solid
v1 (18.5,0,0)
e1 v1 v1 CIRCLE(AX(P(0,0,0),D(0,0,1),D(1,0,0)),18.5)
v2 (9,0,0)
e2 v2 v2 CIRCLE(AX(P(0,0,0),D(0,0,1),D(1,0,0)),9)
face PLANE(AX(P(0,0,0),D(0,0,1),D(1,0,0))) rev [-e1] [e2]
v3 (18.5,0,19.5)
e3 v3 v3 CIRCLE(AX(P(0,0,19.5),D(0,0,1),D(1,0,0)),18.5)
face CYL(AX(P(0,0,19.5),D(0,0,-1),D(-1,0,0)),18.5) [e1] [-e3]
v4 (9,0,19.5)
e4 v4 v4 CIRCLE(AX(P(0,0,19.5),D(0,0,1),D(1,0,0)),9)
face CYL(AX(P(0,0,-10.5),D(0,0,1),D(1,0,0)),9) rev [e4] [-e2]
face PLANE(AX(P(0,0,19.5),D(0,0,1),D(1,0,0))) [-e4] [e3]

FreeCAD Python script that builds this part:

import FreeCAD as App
import Part
import Sketcher
Q = App.Units.Quantity

doc = App.newDocument("Part")
body = doc.addObject("PartDesign::Body", "Body")

# Sketch on XY plane
sketch1 = doc.addObject("Sketcher::SketchObject", "Sketch")
body.addObject(sketch1)
sketch1.AttachmentSupport = (doc.XY_Plane, [""])
sketch1.MapMode = "FlatFace"
sketch1.addGeometry(Part.Circle(App.Vector(0, 0, 0), App.Vector(0, 0, 1), 18.5), False)
sketch1.addConstraint([
    Sketcher.Constraint("Coincident", 0, 3, -1, 1),
    Sketcher.Constraint("Diameter", 0, Q("37 mm")),
])
pad1 = doc.addObject("PartDesign::Pad", "Pad")
body.addObject(pad1)
pad1.Profile = sketch1
pad1.Length = 19.5

# Sketch on XY plane
sketch2 = doc.addObject("Sketcher::SketchObject", "Sketch001")
body.addObject(sketch2)
sketch2.AttachmentSupport = (doc.XY_Plane, [""])
sketch2.MapMode = "FlatFace"
sketch2.AttachmentOffset = App.Placement(App.Vector(0, 0, 19.5), App.Rotation())
sketch2.addGeometry(Part.Circle(App.Vector(0, 0, 0), App.Vector(0, 0, 1), 9), False)
sketch2.addConstraint([
    Sketcher.Constraint("Coincident", 0, 3, -1, 1),
    Sketcher.Constraint("Diameter", 0, Q("18 mm")),
])
pocket1 = doc.addObject("PartDesign::Pocket", "Pocket")
body.addObject(pocket1)
pocket1.Profile = sketch2
pocket1.Length = 30

doc.recompute()
